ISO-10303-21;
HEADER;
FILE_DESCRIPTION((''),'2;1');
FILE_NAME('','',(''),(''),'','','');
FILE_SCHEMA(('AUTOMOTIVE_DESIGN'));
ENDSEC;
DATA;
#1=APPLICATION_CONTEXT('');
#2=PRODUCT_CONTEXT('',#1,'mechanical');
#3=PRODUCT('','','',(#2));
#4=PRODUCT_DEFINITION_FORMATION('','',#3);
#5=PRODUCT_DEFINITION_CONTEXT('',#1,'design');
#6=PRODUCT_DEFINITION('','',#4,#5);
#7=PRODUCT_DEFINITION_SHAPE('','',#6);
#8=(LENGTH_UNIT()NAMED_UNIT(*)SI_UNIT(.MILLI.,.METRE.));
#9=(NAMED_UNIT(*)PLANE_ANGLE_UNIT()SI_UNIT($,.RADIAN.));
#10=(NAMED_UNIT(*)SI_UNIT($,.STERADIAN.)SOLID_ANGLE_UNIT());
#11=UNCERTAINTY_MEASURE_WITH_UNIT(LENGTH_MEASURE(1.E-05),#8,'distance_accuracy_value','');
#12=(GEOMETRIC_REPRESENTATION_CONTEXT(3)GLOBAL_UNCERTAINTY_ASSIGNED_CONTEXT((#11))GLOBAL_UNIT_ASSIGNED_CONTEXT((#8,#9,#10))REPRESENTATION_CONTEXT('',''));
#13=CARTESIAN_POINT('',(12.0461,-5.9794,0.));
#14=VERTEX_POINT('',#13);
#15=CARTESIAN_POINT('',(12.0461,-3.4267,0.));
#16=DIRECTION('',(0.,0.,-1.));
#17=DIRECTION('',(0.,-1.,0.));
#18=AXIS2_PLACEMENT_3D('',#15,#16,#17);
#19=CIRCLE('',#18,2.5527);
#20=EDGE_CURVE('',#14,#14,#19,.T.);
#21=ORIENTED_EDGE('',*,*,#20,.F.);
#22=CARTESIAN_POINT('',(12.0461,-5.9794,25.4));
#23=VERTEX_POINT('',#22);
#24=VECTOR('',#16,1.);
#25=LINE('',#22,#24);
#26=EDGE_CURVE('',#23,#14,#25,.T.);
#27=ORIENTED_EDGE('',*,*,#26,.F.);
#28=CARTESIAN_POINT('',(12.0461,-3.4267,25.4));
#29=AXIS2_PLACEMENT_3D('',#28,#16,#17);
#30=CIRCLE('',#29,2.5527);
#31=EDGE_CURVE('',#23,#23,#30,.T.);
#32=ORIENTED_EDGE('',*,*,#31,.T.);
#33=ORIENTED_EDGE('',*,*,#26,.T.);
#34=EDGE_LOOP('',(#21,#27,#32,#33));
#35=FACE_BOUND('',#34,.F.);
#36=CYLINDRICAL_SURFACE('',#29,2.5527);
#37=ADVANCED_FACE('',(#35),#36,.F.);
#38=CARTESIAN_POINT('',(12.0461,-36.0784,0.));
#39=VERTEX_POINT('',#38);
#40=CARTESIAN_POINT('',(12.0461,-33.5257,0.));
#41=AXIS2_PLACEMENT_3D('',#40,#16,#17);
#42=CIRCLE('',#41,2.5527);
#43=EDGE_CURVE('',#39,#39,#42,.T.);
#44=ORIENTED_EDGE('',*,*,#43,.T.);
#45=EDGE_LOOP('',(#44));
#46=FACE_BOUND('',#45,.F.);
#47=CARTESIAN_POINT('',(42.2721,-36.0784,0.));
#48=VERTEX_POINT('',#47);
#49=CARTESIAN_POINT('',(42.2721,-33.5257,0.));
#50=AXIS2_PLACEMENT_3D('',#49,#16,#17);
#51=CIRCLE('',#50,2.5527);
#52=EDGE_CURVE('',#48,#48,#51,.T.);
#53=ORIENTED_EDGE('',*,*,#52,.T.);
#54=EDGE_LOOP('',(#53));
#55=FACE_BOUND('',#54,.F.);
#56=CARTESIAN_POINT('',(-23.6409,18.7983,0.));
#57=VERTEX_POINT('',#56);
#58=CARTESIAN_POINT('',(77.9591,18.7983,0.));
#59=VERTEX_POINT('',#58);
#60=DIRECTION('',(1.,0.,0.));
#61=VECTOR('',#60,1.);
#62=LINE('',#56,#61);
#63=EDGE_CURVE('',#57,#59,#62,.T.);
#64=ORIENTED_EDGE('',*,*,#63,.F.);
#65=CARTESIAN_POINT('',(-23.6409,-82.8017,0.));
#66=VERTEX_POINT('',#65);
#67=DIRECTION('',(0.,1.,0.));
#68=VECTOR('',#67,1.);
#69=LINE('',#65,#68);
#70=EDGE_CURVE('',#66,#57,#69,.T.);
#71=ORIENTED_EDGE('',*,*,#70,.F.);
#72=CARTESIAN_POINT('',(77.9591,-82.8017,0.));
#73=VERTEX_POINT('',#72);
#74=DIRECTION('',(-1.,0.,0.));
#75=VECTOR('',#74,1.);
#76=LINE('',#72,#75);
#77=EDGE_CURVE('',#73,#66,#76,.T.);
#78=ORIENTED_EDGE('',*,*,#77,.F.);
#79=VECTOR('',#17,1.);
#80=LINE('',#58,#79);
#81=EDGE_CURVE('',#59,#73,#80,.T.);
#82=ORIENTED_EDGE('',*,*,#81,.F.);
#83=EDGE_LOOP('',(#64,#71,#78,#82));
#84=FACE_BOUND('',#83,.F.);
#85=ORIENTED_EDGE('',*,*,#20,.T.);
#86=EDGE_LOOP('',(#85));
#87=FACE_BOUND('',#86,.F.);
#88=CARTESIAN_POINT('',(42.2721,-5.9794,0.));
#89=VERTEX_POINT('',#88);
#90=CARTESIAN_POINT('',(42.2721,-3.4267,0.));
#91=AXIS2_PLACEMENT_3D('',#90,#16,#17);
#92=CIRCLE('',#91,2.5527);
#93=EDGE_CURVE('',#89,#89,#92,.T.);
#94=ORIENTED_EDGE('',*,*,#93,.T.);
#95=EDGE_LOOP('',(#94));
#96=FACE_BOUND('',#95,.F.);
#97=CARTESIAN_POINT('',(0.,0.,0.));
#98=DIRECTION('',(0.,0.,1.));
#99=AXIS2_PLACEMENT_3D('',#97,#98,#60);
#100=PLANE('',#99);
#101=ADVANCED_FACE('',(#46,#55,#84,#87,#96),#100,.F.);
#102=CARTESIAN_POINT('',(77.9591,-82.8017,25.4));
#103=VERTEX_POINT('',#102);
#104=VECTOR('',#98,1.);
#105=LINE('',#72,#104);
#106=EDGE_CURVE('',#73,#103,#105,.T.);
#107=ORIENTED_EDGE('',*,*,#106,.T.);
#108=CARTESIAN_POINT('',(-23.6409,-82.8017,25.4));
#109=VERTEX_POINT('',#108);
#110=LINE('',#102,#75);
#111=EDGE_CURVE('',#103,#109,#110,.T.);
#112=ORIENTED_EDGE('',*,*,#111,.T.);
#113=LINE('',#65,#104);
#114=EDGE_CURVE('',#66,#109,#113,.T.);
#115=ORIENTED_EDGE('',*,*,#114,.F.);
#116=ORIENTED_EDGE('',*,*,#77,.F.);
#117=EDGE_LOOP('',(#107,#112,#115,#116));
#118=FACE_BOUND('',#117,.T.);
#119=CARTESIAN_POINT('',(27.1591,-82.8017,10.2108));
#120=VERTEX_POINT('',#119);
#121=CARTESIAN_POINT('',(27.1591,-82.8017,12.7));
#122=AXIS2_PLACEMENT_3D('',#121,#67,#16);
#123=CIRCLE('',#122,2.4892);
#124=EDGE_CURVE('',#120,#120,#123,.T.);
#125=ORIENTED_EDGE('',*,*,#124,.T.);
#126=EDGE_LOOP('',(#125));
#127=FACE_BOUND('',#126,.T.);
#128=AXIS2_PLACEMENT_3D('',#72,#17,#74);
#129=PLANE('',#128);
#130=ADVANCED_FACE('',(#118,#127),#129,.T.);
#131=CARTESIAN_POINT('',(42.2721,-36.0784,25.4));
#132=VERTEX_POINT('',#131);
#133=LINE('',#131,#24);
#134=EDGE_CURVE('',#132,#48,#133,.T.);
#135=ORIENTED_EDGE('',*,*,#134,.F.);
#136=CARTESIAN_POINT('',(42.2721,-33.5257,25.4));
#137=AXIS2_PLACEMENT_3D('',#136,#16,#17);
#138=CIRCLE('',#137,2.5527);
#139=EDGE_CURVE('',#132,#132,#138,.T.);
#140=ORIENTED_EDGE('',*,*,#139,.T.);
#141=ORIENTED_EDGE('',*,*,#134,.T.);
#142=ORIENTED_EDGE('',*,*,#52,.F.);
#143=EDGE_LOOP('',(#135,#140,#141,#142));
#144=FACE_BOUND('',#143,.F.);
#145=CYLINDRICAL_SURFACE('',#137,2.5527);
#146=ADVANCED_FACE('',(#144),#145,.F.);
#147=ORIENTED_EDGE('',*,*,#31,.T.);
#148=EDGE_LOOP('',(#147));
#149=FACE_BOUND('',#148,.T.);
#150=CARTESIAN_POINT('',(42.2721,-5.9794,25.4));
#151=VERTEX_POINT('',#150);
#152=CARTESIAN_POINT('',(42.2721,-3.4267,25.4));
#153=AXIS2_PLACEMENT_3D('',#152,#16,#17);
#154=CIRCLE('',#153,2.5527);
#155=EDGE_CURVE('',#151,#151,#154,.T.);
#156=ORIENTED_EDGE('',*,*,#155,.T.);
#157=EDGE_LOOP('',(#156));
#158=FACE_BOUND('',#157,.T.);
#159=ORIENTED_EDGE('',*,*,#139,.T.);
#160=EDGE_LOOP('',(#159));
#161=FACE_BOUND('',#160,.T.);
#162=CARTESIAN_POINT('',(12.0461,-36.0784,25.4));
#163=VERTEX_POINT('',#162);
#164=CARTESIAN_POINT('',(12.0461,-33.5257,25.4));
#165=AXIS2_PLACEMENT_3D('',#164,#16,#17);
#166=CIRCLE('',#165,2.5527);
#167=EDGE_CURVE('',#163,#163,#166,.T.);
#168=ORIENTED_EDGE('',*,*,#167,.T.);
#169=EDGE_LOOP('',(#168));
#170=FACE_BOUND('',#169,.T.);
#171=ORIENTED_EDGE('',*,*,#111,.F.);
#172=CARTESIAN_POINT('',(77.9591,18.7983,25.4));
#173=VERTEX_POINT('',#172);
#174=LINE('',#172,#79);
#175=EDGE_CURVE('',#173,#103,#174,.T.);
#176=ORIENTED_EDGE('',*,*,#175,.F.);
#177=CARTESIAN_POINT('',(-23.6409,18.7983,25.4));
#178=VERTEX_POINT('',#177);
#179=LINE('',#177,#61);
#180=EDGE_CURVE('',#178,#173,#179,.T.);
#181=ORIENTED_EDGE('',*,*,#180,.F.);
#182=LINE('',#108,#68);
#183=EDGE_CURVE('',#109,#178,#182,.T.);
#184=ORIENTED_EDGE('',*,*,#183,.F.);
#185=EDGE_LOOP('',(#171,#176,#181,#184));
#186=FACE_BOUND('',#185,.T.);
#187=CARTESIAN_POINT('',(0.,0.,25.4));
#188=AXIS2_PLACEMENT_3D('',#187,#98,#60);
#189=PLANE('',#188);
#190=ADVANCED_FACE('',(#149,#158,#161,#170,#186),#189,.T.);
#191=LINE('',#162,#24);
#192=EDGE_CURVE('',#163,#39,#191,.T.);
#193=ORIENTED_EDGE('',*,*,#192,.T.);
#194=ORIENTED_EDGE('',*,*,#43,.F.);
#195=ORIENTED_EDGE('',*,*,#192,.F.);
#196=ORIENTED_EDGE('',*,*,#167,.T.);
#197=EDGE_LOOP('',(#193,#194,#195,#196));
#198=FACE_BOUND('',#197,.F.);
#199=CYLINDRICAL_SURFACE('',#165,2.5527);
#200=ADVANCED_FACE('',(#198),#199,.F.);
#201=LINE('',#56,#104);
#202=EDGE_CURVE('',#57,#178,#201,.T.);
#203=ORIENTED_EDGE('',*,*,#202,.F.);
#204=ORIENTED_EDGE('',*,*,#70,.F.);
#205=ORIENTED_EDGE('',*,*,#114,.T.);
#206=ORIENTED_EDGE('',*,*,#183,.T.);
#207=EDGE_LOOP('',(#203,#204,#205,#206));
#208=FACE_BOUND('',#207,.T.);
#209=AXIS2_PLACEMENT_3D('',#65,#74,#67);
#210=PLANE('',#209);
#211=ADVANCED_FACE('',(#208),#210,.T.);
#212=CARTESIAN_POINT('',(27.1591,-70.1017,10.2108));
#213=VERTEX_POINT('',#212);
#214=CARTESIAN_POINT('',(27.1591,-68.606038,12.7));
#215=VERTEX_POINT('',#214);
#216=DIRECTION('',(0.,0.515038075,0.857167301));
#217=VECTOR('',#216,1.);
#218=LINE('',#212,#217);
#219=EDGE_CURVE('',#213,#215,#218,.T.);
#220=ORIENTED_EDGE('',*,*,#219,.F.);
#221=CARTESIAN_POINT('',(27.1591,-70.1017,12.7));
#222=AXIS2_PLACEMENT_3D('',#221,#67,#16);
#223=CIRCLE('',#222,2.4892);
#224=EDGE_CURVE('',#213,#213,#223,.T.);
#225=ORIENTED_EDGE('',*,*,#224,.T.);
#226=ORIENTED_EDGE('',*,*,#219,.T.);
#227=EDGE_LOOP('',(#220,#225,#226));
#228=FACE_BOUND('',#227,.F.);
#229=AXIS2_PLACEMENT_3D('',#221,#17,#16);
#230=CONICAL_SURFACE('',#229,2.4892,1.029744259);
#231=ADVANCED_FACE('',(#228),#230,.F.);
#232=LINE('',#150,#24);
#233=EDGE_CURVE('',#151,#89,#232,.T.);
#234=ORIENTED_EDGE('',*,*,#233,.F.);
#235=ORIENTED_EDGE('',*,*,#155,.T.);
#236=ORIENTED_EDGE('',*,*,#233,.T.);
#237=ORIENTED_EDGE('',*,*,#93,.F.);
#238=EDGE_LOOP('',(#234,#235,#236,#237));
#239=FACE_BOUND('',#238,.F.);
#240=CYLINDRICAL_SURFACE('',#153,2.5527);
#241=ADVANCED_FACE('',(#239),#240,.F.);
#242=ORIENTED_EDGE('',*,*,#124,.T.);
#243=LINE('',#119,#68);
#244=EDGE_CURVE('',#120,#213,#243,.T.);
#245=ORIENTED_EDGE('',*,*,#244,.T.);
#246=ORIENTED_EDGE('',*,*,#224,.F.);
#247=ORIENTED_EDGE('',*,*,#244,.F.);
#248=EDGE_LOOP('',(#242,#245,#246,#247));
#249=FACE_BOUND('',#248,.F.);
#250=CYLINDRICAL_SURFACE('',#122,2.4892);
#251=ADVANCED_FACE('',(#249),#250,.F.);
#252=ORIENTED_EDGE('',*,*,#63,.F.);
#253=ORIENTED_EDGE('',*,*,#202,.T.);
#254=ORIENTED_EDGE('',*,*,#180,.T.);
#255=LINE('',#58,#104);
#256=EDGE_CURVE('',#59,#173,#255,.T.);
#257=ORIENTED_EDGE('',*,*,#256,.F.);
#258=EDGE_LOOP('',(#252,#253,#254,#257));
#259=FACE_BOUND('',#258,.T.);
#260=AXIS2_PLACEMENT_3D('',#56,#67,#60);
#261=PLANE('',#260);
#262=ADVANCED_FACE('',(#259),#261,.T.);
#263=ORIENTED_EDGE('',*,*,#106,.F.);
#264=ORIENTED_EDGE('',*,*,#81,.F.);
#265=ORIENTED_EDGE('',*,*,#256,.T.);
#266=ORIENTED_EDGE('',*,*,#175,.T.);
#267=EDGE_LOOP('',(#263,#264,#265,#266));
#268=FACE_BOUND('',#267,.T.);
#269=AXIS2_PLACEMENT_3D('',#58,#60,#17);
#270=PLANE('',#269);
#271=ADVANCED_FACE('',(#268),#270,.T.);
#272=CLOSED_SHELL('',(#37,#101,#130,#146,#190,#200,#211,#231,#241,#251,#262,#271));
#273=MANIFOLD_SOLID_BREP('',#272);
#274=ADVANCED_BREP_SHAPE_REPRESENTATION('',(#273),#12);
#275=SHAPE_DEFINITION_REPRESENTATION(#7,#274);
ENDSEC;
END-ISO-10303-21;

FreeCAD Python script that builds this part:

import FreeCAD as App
import Part
import Sketcher

V = App.Vector
Q = App.Units.Quantity


def add_polygon(sketch, points):
    """Adds a closed chain of lines whose ends are joined by coincident constraints."""
    first, n = sketch.GeometryCount, len(points)
    for a, b in zip(points, points[1:] + points[:1]):
        sketch.addGeometry(Part.LineSegment(App.Vector(*a, 0), App.Vector(*b, 0)), False)
    for i in range(n):
        sketch.addConstraint(Sketcher.Constraint("Coincident", first + i, 2, first + (i + 1) % n, 1))

doc = App.newDocument("Part")
params = doc.addObject("Spreadsheet::Sheet", "Params")
for row, (alias, value) in enumerate([
    ("sketch1_width", "4 in"),
    ("pad1_length", "1 in"),
    ("sketch2_diameter", "0.201 in"),
    ("hole_diameter", "0.201 in"),
    ("hole_depth", "1 in"),
    ("sketch3_diameter", "0.196 in"),
    ("hole2_diameter", "0.196 in"),
    ("hole2_depth", "0.5 in"),
], start=1):
    params.set(f"A{row}", alias)
    params.set(f"B{row}", "=" + value)
    params.setAlias(f"B{row}", alias)

body = doc.addObject("PartDesign::Body", "Body")

sketch1 = doc.addObject("Sketcher::SketchObject", "Sketch")
body.addObject(sketch1)
sketch1.AttachmentSupport = (doc.XY_Plane, [""])
sketch1.MapMode = "FlatFace"
add_polygon(sketch1, [(78, 19), (-24, 19), (-24, -83), (78, -83)])
sketch1.addConstraint([
    Sketcher.Constraint("Horizontal", 0),
    Sketcher.Constraint("Vertical", 1),
    Sketcher.Constraint("Horizontal", 2),
    Sketcher.Constraint("Vertical", 3),
    Sketcher.Constraint("Equal", 2, 1),
    Sketcher.Constraint("DistanceX", 0, 2, 0, 1, Q("4 in")),
    Sketcher.Constraint("DistanceY", -1, 1, 0, 2, Q("0.7401 in")),
    Sketcher.Constraint("DistanceX", 0, 2, -1, 1, 23.641),
])
sketch1.setExpression("Constraints[9]", "Params.sketch1_width")
pad1 = doc.addObject("PartDesign::Pad", "Pad")
body.addObject(pad1)
pad1.Profile = sketch1
pad1.setExpression("Length", "Params.pad1_length")

sketch2 = doc.addObject("Sketcher::SketchObject", "Sketch001")
body.addObject(sketch2)
sketch2.AttachmentSupport = (doc.XY_Plane, [""])
sketch2.MapMode = "FlatFace"
sketch2.AttachmentOffset = App.Placement(V(0, 0, 1 * 25.4), App.Rotation())
sketch2.addGeometry([
    Part.Circle(V(12, -3.4, 0), V(0, 0, 1), 2.6),
    Part.Circle(V(42.3, -3.4, 0), V(0, 0, 1), 2.6),
    Part.Circle(V(42.3, -33.5, 0), V(0, 0, 1), 2.6),
    Part.Circle(V(12, -33.5, 0), V(0, 0, 1), 2.6),
], False)
sketch2.addConstraint([
    Sketcher.Constraint("Equal", 0, 1),
    Sketcher.Constraint("Equal", 1, 2),
    Sketcher.Constraint("Equal", 2, 3),
    Sketcher.Constraint("Horizontal", 0, 3, 1, 3),
    Sketcher.Constraint("Horizontal", 2, 3, 3, 3),
    Sketcher.Constraint("Vertical", 1, 3, 2, 3),
    Sketcher.Constraint("Vertical", 0, 3, 3, 3),
    Sketcher.Constraint("Diameter", 0, Q("0.201 in")),
    Sketcher.Constraint("DistanceX", 0, 3, 1, 3, Q("1.19 in")),
    Sketcher.Constraint("DistanceY", 2, 3, 1, 3, Q("1.185 in")),
    Sketcher.Constraint("DistanceY", 0, 3, -1, 1, Q("0.1349 in")),
    Sketcher.Constraint("DistanceX", -1, 1, 0, 3, 12.046),
])
sketch2.setExpression("Constraints[7]", "Params.sketch2_diameter")
doc.recompute()
hole = doc.addObject("PartDesign::Hole", "Hole")
body.addObject(hole)
hole.Profile = sketch2
hole.ThreadType = "None"
hole.setExpression("Diameter", "Params.hole_diameter")
hole.DepthType = "Dimension"
hole.setExpression("Depth", "Params.hole_depth")
hole.DrillPoint = "Angled"
hole.DrillPointAngle = 118

sketch3 = doc.addObject("Sketcher::SketchObject", "Sketch002")
body.addObject(sketch3)
sketch3.AttachmentSupport = (doc.XZ_Plane, [""])
sketch3.MapMode = "FlatFace"
sketch3.AttachmentOffset = App.Placement(V(0, 0, 3.2599094 * 25.4), App.Rotation())
sketch3.addGeometry(Part.Circle(V(27.2, 12.7, 0), V(0, 0, 1), 2.5), False)
sketch3.addConstraint([
    Sketcher.Constraint("Diameter", 0, Q("0.196 in")),
    Sketcher.Constraint("DistanceY", -1, 1, 0, 3, Q("0.5 in")),
    Sketcher.Constraint("DistanceX", -1, 1, 0, 3, 27.159),
])
sketch3.setExpression("Constraints[0]", "Params.sketch3_diameter")
doc.recompute()
hole2 = doc.addObject("PartDesign::Hole", "Hole001")
body.addObject(hole2)
hole2.Profile = sketch3
hole2.ThreadType = "None"
hole2.setExpression("Diameter", "Params.hole2_diameter")
hole2.DepthType = "Dimension"
hole2.setExpression("Depth", "Params.hole2_depth")
hole2.DrillPoint = "Angled"
hole2.DrillPointAngle = 118

doc.recompute()
